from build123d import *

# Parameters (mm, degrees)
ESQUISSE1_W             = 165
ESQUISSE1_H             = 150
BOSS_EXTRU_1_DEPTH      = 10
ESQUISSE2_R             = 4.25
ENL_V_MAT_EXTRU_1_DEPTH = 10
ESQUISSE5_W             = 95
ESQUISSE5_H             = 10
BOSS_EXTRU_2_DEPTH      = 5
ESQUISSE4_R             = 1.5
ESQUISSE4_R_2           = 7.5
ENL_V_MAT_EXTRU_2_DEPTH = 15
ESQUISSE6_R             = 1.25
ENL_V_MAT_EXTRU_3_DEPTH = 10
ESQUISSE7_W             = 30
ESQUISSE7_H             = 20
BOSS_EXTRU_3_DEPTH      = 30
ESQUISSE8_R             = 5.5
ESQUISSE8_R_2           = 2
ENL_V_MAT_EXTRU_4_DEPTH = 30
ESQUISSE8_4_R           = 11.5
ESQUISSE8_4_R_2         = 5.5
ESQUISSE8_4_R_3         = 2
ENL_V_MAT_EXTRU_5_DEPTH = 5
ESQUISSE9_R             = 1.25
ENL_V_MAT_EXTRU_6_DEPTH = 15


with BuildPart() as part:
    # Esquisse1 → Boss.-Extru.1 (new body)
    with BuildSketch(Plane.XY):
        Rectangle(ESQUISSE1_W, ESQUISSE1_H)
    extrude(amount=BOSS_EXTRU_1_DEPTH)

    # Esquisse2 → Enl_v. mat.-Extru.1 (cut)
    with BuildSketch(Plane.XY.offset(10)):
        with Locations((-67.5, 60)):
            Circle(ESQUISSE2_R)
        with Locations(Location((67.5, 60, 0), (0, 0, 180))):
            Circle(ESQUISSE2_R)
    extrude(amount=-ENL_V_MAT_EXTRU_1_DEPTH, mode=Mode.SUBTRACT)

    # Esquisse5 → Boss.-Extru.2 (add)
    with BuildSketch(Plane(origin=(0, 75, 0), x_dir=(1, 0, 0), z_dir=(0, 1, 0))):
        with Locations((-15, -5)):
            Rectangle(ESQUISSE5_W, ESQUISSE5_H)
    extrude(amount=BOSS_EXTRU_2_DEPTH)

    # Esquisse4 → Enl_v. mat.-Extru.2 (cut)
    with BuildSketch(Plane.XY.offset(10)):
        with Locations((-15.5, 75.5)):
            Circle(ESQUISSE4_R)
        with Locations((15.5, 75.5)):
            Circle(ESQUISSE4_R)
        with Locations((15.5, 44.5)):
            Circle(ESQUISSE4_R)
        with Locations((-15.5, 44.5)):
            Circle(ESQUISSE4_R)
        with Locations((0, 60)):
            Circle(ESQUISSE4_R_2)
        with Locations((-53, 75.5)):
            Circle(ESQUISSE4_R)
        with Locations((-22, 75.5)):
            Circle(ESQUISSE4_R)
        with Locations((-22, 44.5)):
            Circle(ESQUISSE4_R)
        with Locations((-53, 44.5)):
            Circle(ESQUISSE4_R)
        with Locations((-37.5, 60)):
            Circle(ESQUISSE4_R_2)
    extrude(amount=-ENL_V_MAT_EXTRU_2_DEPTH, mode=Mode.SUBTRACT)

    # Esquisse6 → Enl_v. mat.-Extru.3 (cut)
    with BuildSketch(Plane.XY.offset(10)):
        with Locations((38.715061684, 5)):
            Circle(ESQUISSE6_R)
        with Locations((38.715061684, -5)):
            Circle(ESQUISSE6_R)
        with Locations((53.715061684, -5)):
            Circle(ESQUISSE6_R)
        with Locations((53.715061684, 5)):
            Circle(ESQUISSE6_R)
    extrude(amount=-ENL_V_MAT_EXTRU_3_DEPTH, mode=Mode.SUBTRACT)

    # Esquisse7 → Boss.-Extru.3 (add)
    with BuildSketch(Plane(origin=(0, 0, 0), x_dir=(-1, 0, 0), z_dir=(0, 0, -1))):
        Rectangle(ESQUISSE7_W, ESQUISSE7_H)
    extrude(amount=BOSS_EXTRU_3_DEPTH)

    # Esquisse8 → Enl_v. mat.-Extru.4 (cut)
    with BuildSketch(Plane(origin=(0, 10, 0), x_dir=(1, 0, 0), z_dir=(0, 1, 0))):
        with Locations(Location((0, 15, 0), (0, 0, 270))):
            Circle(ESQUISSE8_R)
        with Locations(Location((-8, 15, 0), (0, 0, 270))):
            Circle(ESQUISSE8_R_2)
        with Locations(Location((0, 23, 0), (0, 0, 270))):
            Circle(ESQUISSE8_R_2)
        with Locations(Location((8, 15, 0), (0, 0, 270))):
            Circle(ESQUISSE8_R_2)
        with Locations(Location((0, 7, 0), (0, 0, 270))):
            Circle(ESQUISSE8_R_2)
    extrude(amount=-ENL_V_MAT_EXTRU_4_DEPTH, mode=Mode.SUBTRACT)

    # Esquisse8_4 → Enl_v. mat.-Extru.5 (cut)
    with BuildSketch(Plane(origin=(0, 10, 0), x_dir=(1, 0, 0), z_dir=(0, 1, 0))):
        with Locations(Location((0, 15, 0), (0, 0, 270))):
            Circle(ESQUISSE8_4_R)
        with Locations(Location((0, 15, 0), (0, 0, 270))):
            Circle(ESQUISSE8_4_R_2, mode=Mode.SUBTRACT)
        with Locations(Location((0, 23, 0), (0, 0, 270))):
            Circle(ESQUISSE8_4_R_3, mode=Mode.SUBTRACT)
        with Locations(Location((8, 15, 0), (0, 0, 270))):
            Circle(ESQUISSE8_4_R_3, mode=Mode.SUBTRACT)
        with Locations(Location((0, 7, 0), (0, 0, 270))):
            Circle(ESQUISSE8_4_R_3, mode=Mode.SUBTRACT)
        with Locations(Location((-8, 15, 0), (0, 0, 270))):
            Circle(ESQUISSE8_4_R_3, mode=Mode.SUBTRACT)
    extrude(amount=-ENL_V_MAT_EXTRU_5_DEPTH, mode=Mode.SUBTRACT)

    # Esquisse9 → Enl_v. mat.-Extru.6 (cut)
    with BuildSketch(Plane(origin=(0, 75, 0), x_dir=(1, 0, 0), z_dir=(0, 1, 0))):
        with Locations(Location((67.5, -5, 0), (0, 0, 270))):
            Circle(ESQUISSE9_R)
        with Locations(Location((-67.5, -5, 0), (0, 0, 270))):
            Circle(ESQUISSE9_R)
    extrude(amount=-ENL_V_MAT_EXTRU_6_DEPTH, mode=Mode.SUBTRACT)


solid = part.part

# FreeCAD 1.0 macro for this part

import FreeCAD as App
import Part
import Sketcher
Q = App.Units.Quantity

doc = App.newDocument("Part")
body = doc.addObject("PartDesign::Body", "Body")

# Sketch on XY plane
sketch1 = body.newObject("Sketcher::SketchObject", "Sketch")
sketch1.AttachmentSupport = (doc.getObject("XY_Plane"), [""])
sketch1.MapMode = "FlatFace"
sketch1.addGeometry([
    Part.LineSegment(App.Vector(-82, 75, 0), App.Vector(-82, -75, 0)),
    Part.LineSegment(App.Vector(-82, -75, 0), App.Vector(82, -75, 0)),
    Part.LineSegment(App.Vector(82, -75, 0), App.Vector(82, 75, 0)),
    Part.LineSegment(App.Vector(82, 75, 0), App.Vector(-82, 75, 0)),
], False)
sketch1.addConstraint([
    Sketcher.Constraint("Coincident", 0, 2, 1, 1),
    Sketcher.Constraint("Coincident", 1, 2, 2, 1),
    Sketcher.Constraint("Coincident", 2, 2, 3, 1),
    Sketcher.Constraint("Coincident", 3, 2, 0, 1),
    Sketcher.Constraint("Vertical", 0),
    Sketcher.Constraint("Horizontal", 1),
    Sketcher.Constraint("Vertical", 2),
    Sketcher.Constraint("Horizontal", 3),
    Sketcher.Constraint("Symmetric", 0, 2, 2, 2, -1, 1),
    Sketcher.Constraint("DistanceX", 1, 1, 1, 2, Q("165 mm")),
    Sketcher.Constraint("DistanceY", 0, 2, 0, 1, Q("150 mm")),
])
pad1 = body.newObject("PartDesign::Pad", "Pad")
pad1.Profile = sketch1
pad1.Length = 10

# Sketch on XY plane
sketch2 = body.newObject("Sketcher::SketchObject", "Sketch001")
sketch2.AttachmentSupport = (doc.getObject("XY_Plane"), [""])
sketch2.MapMode = "FlatFace"
sketch2.AttachmentOffset = App.Placement(App.Vector(0, 0, 10), App.Rotation())
sketch2.addGeometry([
    Part.Circle(App.Vector(-67.5, 60, 0), App.Vector(0, 0, 1), 4.2),
    Part.Circle(App.Vector(67.5, 60, 0), App.Vector(0, 0, 1), 4.2),
], False)
sketch2.addConstraint([
    Sketcher.Constraint("Equal", 0, 1),
    Sketcher.Constraint("Symmetric", 0, 3, 1, 3, -2),
    Sketcher.Constraint("Diameter", 0, Q("8.5 mm")),
    Sketcher.Constraint("DistanceY", -1, 1, 0, 3, Q("60 mm")),
    Sketcher.Constraint("DistanceX", 0, 3, 1, 3, Q("135 mm")),
])
pocket1 = body.newObject("PartDesign::Pocket", "Pocket")
pocket1.Profile = sketch2
pocket1.Length = 10

# Sketch on XZ plane
sketch3 = body.newObject("Sketcher::SketchObject", "Sketch002")
sketch3.AttachmentSupport = (doc.getObject("XZ_Plane"), [""])
sketch3.MapMode = "FlatFace"
sketch3.AttachmentOffset = App.Placement(App.Vector(0, 0, -75), App.Rotation())
sketch3.addGeometry([
    Part.LineSegment(App.Vector(-62, 0, 0), App.Vector(-62, 10, 0)),
    Part.LineSegment(App.Vector(-62, 10, 0), App.Vector(32, 10, 0)),
    Part.LineSegment(App.Vector(32, 10, 0), App.Vector(32, 0, 0)),
    Part.LineSegment(App.Vector(32, 0, 0), App.Vector(-62, 0, 0)),
], False)
sketch3.addConstraint([
    Sketcher.Constraint("Coincident", 0, 2, 1, 1),
    Sketcher.Constraint("Coincident", 1, 2, 2, 1),
    Sketcher.Constraint("Coincident", 2, 2, 3, 1),
    Sketcher.Constraint("Coincident", 3, 2, 0, 1),
    Sketcher.Constraint("Vertical", 0),
    Sketcher.Constraint("Horizontal", 1),
    Sketcher.Constraint("Vertical", 2),
    Sketcher.Constraint("Horizontal", 3),
    Sketcher.Constraint("PointOnObject", 2, 2, -1),
    Sketcher.Constraint("DistanceX", 1, 1, 1, 2, Q("95 mm")),
    Sketcher.Constraint("DistanceY", 0, 1, 0, 2, Q("10 mm")),
    Sketcher.Constraint("DistanceX", 0, 2, -1, 1, Q("62.5 mm")),
])
pad2 = body.newObject("PartDesign::Pad", "Pad001")
pad2.Profile = sketch3
pad2.Length = 5
pad2.Reversed = True

# Sketch on XY plane
sketch4 = body.newObject("Sketcher::SketchObject", "Sketch003")
sketch4.AttachmentSupport = (doc.getObject("XY_Plane"), [""])
sketch4.MapMode = "FlatFace"
sketch4.AttachmentOffset = App.Placement(App.Vector(0, 0, 10), App.Rotation())
sketch4.addGeometry([
    Part.Circle(App.Vector(-15.5, 75.5, 0), App.Vector(0, 0, 1), 1.5),  # 0
    Part.Circle(App.Vector(15.5, 75.5, 0), App.Vector(0, 0, 1), 1.5),  # 1
    Part.Circle(App.Vector(15.5, 44.5, 0), App.Vector(0, 0, 1), 1.5),  # 2
    Part.Circle(App.Vector(-15.5, 44.5, 0), App.Vector(0, 0, 1), 1.5),  # 3
    Part.Circle(App.Vector(0, 60, 0), App.Vector(0, 0, 1), 7.5),  # 4
    Part.Circle(App.Vector(-53, 75.5, 0), App.Vector(0, 0, 1), 1.5),  # 5
    Part.Circle(App.Vector(-22, 75.5, 0), App.Vector(0, 0, 1), 1.5),  # 6
    Part.Circle(App.Vector(-22, 44.5, 0), App.Vector(0, 0, 1), 1.5),  # 7
    Part.Circle(App.Vector(-53, 44.5, 0), App.Vector(0, 0, 1), 1.5),  # 8
    Part.Circle(App.Vector(-37.5, 60, 0), App.Vector(0, 0, 1), 7.5),  # 9
], False)
sketch4.addConstraint([
    Sketcher.Constraint("Equal", 0, 1),
    Sketcher.Constraint("Equal", 1, 2),
    Sketcher.Constraint("Equal", 2, 3),
    Sketcher.Constraint("Equal", 3, 5),
    Sketcher.Constraint("Equal", 5, 6),
    Sketcher.Constraint("Equal", 6, 7),
    Sketcher.Constraint("Equal", 7, 8),
    Sketcher.Constraint("Equal", 4, 9),
    Sketcher.Constraint("Symmetric", 0, 3, 1, 3, -2),
    Sketcher.Constraint("Symmetric", 2, 3, 3, 3, -2),
    Sketcher.Constraint("PointOnObject", 4, 3, -2),
    Sketcher.Constraint("Horizontal", 1, 3, 5, 3),
    Sketcher.Constraint("Horizontal", 5, 3, 6, 3),
    Sketcher.Constraint("Horizontal", 3, 3, 7, 3),
    Sketcher.Constraint("Horizontal", 7, 3, 8, 3),
    Sketcher.Constraint("Horizontal", 4, 3, 9, 3),
    Sketcher.Constraint("Vertical", 1, 3, 2, 3),
    Sketcher.Constraint("Vertical", 6, 3, 7, 3),
    Sketcher.Constraint("Vertical", 5, 3, 8, 3),
    Sketcher.Constraint("Diameter", 0, Q("3 mm")),
    Sketcher.Constraint("Diameter", 4, Q("15 mm")),
    Sketcher.Constraint("DistanceY", -1, 1, 4, 3, Q("60 mm")),
    Sketcher.Constraint("DistanceX", 5, 3, -1, 1, Q("53 mm")),
    Sketcher.Constraint("DistanceX", 6, 3, -1, 1, Q("22 mm")),
    Sketcher.Constraint("DistanceX", 0, 3, 1, 3, Q("31 mm")),
    Sketcher.Constraint("DistanceY", 2, 3, 1, 3, Q("31 mm")),
    Sketcher.Constraint("DistanceX", 9, 3, 0, 3, Q("22 mm")),
    Sketcher.Constraint("DistanceY", -1, 1, 0, 3, Q("75.5 mm")),
])
pocket2 = body.newObject("PartDesign::Pocket", "Pocket001")
pocket2.Profile = sketch4
pocket2.Length = 15

# Sketch on XY plane
sketch5 = body.newObject("Sketcher::SketchObject", "Sketch004")
sketch5.AttachmentSupport = (doc.getObject("XY_Plane"), [""])
sketch5.MapMode = "FlatFace"
sketch5.AttachmentOffset = App.Placement(App.Vector(0, 0, 10), App.Rotation())
sketch5.addGeometry([
    Part.Circle(App.Vector(38.7, 5, 0), App.Vector(0, 0, 1), 1.2),
    Part.Circle(App.Vector(38.7, -5, 0), App.Vector(0, 0, 1), 1.2),
    Part.Circle(App.Vector(53.7, -5, 0), App.Vector(0, 0, 1), 1.2),
    Part.Circle(App.Vector(53.7, 5, 0), App.Vector(0, 0, 1), 1.2),
], False)
sketch5.addConstraint([
    Sketcher.Constraint("Equal", 0, 1),
    Sketcher.Constraint("Equal", 1, 2),
    Sketcher.Constraint("Equal", 2, 3),
    Sketcher.Constraint("Symmetric", 0, 3, 1, 3, -1),
    Sketcher.Constraint("Symmetric", 2, 3, 3, 3, -1),
    Sketcher.Constraint("Horizontal", 1, 3, 2, 3),
    Sketcher.Constraint("Diameter", 0, Q("2.5 mm")),
    Sketcher.Constraint("DistanceY", -1, 1, 0, 3, Q("5 mm")),
    Sketcher.Constraint("DistanceX", 1, 3, 2, 3, Q("15 mm")),
    Sketcher.Constraint("DistanceX", -1, 1, 0, 3, Q("38.715062 mm")),
])
pocket3 = body.newObject("PartDesign::Pocket", "Pocket002")
pocket3.Profile = sketch5
pocket3.Length = 10

# Sketch on XY plane
sketch6 = body.newObject("Sketcher::SketchObject", "Sketch005")
sketch6.AttachmentSupport = (doc.getObject("XY_Plane"), [""])
sketch6.MapMode = "FlatFace"
sketch6.addGeometry([
    Part.LineSegment(App.Vector(15, 10, 0), App.Vector(15, -10, 0)),
    Part.LineSegment(App.Vector(15, -10, 0), App.Vector(-15, -10, 0)),
    Part.LineSegment(App.Vector(-15, -10, 0), App.Vector(-15, 10, 0)),
    Part.LineSegment(App.Vector(-15, 10, 0), App.Vector(15, 10, 0)),
], False)
sketch6.addConstraint([
    Sketcher.Constraint("Coincident", 0, 2, 1, 1),
    Sketcher.Constraint("Coincident", 1, 2, 2, 1),
    Sketcher.Constraint("Coincident", 2, 2, 3, 1),
    Sketcher.Constraint("Coincident", 3, 2, 0, 1),
    Sketcher.Constraint("Vertical", 0),
    Sketcher.Constraint("Horizontal", 1),
    Sketcher.Constraint("Vertical", 2),
    Sketcher.Constraint("Horizontal", 3),
    Sketcher.Constraint("Symmetric", 0, 2, 2, 2, -1, 1),
    Sketcher.Constraint("DistanceX", 1, 2, 1, 1, Q("30 mm")),
    Sketcher.Constraint("DistanceY", 0, 2, 0, 1, Q("20 mm")),
])
pad3 = body.newObject("PartDesign::Pad", "Pad002")
pad3.Profile = sketch6
pad3.Length = 30
pad3.Reversed = True

# Sketch on XZ plane
sketch7 = body.newObject("Sketcher::SketchObject", "Sketch006")
sketch7.AttachmentSupport = (doc.getObject("XZ_Plane"), [""])
sketch7.MapMode = "FlatFace"
sketch7.AttachmentOffset = App.Placement(App.Vector(0, 0, -10), App.Rotation())
sketch7.addGeometry([
    Part.Circle(App.Vector(0, -15, 0), App.Vector(0, 0, 1), 5.5),  # 0
    Part.Circle(App.Vector(-8, -15, 0), App.Vector(0, 0, 1), 2),  # 1
    Part.Circle(App.Vector(0, -23, 0), App.Vector(0, 0, 1), 2),  # 2
    Part.Circle(App.Vector(8, -15, 0), App.Vector(0, 0, 1), 2),  # 3
    Part.Circle(App.Vector(0, -7, 0), App.Vector(0, 0, 1), 2),  # 4
], False)
sketch7.addConstraint([
    Sketcher.Constraint("Equal", 1, 2),
    Sketcher.Constraint("Equal", 2, 3),
    Sketcher.Constraint("Equal", 3, 4),
    Sketcher.Constraint("Symmetric", 1, 3, 3, 3, -2),
    Sketcher.Constraint("PointOnObject", 0, 3, -2),
    Sketcher.Constraint("PointOnObject", 2, 3, -2),
    Sketcher.Constraint("PointOnObject", 4, 3, -2),
    Sketcher.Constraint("Horizontal", 0, 3, 1, 3),
    Sketcher.Constraint("Diameter", 0, Q("11 mm")),
    Sketcher.Constraint("Diameter", 1, Q("4 mm")),
    Sketcher.Constraint("DistanceY", 0, 3, -1, 1, Q("15 mm")),
    Sketcher.Constraint("DistanceX", 1, 3, -1, 1, Q("8 mm")),
    Sketcher.Constraint("DistanceY", 2, 3, -1, 1, Q("23 mm")),
    Sketcher.Constraint("DistanceY", 4, 3, -1, 1, Q("7 mm")),
])
pocket4 = body.newObject("PartDesign::Pocket", "Pocket003")
pocket4.Profile = sketch7
pocket4.Length = 30
pocket4.Reversed = True

# Sketch on XZ plane
sketch8 = body.newObject("Sketcher::SketchObject", "Sketch007")
sketch8.AttachmentSupport = (doc.getObject("XZ_Plane"), [""])
sketch8.MapMode = "FlatFace"
sketch8.AttachmentOffset = App.Placement(App.Vector(0, 0, -10), App.Rotation())
sketch8.addGeometry([
    Part.Circle(App.Vector(0, -15, 0), App.Vector(0, 0, 1), 11.5),  # 0
    Part.Circle(App.Vector(-8, -15, 0), App.Vector(0, 0, 1), 2),  # 1
    Part.Circle(App.Vector(0, -23, 0), App.Vector(0, 0, 1), 2),  # 2
    Part.Circle(App.Vector(8, -15, 0), App.Vector(0, 0, 1), 2),  # 3
    Part.Circle(App.Vector(0, -15, 0), App.Vector(0, 0, 1), 5.5),  # 4
    Part.Circle(App.Vector(0, -7, 0), App.Vector(0, 0, 1), 2),  # 5
], False)
sketch8.addConstraint([
    Sketcher.Constraint("Coincident", 4, 3, 0, 3),
    Sketcher.Constraint("Equal", 1, 2),
    Sketcher.Constraint("Equal", 2, 3),
    Sketcher.Constraint("Equal", 3, 5),
    Sketcher.Constraint("Symmetric", 1, 3, 3, 3, -2),
    Sketcher.Constraint("PointOnObject", 0, 3, -2),
    Sketcher.Constraint("PointOnObject", 2, 3, -2),
    Sketcher.Constraint("PointOnObject", 5, 3, -2),
    Sketcher.Constraint("Horizontal", 0, 3, 1, 3),
    Sketcher.Constraint("Diameter", 0, Q("23 mm")),
    Sketcher.Constraint("Diameter", 1, Q("4 mm")),
    Sketcher.Constraint("Diameter", 4, Q("11 mm")),
    Sketcher.Constraint("DistanceY", 0, 3, -1, 1, Q("15 mm")),
    Sketcher.Constraint("DistanceX", 1, 3, -1, 1, Q("8 mm")),
    Sketcher.Constraint("DistanceY", 2, 3, -1, 1, Q("23 mm")),
    Sketcher.Constraint("DistanceY", 5, 3, -1, 1, Q("7 mm")),
])
pocket5 = body.newObject("PartDesign::Pocket", "Pocket004")
pocket5.Profile = sketch8
pocket5.Length = 5
pocket5.Reversed = True

# Sketch on XZ plane
sketch9 = body.newObject("Sketcher::SketchObject", "Sketch008")
sketch9.AttachmentSupport = (doc.getObject("XZ_Plane"), [""])
sketch9.MapMode = "FlatFace"
sketch9.AttachmentOffset = App.Placement(App.Vector(0, 0, -75), App.Rotation())
sketch9.addGeometry([
    Part.Circle(App.Vector(67.5, 5, 0), App.Vector(0, 0, 1), 1.2),
    Part.Circle(App.Vector(-67.5, 5, 0), App.Vector(0, 0, 1), 1.2),
], False)
sketch9.addConstraint([
    Sketcher.Constraint("Equal", 0, 1),
    Sketcher.Constraint("Symmetric", 0, 3, 1, 3, -2),
    Sketcher.Constraint("Diameter", 0, Q("2.5 mm")),
    Sketcher.Constraint("DistanceY", -1, 1, 0, 3, Q("5 mm")),
    Sketcher.Constraint("DistanceX", 1, 3, 0, 3, Q("135 mm")),
])
pocket6 = body.newObject("PartDesign::Pocket", "Pocket005")
pocket6.Profile = sketch9
pocket6.Length = 15
pocket6.Reversed = True

doc.recompute()
